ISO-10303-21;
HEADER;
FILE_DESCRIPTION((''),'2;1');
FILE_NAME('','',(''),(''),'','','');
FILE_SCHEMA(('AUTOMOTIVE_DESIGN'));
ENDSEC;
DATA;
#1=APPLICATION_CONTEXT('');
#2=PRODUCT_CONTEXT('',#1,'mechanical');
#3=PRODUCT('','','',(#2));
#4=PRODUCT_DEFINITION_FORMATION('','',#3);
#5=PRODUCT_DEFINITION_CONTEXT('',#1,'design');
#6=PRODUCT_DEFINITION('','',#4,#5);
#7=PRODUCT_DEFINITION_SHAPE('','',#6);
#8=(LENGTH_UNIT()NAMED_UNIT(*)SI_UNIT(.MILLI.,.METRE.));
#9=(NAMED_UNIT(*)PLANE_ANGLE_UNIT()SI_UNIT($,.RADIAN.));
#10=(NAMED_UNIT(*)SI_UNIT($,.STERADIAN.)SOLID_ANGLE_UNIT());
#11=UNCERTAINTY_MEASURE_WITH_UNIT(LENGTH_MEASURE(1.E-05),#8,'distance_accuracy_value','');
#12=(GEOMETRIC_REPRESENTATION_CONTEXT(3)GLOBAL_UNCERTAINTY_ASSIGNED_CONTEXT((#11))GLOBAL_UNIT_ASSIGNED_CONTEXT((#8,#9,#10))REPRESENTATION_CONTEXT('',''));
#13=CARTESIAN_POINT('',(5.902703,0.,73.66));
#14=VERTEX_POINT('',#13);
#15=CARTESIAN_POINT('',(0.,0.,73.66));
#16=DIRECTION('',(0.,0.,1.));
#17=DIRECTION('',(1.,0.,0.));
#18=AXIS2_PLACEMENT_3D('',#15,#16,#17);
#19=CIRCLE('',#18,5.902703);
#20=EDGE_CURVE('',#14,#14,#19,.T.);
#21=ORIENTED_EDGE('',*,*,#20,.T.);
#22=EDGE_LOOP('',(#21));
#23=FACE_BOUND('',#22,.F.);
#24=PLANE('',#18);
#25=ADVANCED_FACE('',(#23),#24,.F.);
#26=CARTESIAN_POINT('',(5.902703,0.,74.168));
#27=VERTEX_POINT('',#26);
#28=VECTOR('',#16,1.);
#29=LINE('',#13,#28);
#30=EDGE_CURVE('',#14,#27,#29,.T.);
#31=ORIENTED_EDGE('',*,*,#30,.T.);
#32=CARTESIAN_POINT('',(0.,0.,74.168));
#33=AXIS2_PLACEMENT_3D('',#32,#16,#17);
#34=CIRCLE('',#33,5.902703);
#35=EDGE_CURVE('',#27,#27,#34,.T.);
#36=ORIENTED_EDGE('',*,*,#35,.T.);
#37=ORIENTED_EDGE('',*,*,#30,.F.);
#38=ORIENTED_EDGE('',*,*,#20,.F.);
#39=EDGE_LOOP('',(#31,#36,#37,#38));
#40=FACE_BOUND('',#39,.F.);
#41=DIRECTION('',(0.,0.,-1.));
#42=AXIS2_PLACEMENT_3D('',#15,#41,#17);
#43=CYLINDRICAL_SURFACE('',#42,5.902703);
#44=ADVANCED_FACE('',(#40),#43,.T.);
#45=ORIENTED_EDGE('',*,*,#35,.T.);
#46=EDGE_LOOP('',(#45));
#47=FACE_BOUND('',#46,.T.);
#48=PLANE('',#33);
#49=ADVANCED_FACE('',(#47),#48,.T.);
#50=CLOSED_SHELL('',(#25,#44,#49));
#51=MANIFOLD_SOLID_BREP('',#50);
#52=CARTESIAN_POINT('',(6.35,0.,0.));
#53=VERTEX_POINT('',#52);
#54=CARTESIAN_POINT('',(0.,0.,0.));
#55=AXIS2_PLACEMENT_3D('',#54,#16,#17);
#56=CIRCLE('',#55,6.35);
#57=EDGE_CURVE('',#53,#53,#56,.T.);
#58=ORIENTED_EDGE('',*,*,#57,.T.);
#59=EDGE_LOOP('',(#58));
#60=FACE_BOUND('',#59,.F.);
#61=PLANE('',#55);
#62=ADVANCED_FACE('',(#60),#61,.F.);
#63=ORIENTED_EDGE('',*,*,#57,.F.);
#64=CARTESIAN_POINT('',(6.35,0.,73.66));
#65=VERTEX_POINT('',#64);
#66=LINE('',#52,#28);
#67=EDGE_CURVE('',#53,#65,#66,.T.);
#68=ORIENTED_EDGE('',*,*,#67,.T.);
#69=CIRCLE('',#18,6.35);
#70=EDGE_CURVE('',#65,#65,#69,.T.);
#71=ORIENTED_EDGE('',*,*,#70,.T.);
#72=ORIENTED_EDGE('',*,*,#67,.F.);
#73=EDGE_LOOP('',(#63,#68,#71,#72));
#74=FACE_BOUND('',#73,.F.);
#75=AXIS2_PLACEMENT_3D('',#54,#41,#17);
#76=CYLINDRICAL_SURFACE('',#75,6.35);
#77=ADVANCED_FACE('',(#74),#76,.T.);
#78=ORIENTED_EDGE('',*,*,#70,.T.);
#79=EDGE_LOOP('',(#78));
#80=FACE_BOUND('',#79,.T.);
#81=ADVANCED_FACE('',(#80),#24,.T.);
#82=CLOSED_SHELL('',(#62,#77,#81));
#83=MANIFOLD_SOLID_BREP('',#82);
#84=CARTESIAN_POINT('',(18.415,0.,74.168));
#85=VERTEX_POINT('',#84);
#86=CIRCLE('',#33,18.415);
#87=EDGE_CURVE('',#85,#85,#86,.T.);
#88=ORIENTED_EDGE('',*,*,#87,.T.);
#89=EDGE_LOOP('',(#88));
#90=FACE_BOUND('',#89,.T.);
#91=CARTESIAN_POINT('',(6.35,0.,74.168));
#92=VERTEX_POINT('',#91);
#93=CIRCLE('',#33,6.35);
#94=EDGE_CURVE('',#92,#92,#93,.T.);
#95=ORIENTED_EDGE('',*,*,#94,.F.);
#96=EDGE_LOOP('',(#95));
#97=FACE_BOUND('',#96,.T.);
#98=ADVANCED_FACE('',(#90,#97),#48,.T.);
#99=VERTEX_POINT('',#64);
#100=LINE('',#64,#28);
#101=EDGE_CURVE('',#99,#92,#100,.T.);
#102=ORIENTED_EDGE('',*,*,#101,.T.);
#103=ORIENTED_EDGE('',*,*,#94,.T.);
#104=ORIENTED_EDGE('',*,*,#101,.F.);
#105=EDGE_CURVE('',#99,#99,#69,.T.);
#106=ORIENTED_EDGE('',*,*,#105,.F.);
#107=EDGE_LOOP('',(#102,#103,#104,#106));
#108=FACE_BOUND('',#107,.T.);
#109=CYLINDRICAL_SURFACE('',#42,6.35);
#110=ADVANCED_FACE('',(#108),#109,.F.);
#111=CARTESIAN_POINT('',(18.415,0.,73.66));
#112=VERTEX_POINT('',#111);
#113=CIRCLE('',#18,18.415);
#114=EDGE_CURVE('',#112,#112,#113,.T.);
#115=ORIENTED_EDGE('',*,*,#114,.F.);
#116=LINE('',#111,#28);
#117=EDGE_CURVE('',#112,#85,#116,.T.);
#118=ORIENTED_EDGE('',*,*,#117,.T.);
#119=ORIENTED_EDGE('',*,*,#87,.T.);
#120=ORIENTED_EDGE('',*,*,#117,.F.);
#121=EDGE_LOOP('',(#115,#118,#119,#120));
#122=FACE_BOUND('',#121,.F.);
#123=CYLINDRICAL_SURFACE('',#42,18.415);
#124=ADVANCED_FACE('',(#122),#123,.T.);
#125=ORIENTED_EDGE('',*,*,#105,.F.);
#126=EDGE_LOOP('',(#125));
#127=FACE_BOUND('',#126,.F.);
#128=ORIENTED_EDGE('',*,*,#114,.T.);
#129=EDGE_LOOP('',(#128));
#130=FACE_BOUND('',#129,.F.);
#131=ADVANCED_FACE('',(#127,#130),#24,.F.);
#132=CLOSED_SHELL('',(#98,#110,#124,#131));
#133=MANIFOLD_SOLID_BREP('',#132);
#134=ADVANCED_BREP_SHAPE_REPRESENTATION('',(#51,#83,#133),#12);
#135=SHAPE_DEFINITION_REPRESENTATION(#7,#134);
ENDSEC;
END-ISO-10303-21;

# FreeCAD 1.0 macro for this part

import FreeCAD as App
import Part
import Sketcher
from FreeCAD import Vector
Q = App.Units.Quantity

doc = App.newDocument("Part")
body = doc.addObject("PartDesign::Body", "Body")

# Sketch on XY plane
sketch1 = body.newObject("Sketcher::SketchObject", "Sketch")
sketch1.AttachmentSupport = (doc.getObject("XY_Plane"), [""])
sketch1.MapMode = "FlatFace"
sketch1.addGeometry(Part.Circle(Vector(0, 0, 0), Vector(0, 0, 1), 6), False)
sketch1.addConstraint([
    Sketcher.Constraint("Coincident", 0, 3, -1, 1),
    Sketcher.Constraint("Diameter", 0, Q("0.5 in")),
])
pad1 = body.newObject("PartDesign::Pad", "Pad")
pad1.Profile = sketch1
pad1.Length = Q("2.9 in")
body2 = doc.addObject("PartDesign::Body", "Body001")
body2.AllowCompound = True

# Sketch on XY plane
sketch2 = body2.newObject("Sketcher::SketchObject", "Sketch001")
sketch2.AttachmentSupport = (doc.getObject("XY_Plane001"), [""])
sketch2.MapMode = "FlatFace"
sketch2.AttachmentOffset = App.Placement(Vector(0, 0, 2.9 * 25.4), App.Rotation())
sketch2.addGeometry([
    Part.Circle(Vector(0, 0, 0), Vector(0, 0, 1), 18),
    Part.Circle(Vector(0, 0, 0), Vector(0, 0, 1), 6),
    Part.Circle(Vector(0, 0, 0), Vector(0, 0, 1), 6),
], False)
sketch2.addConstraint([
    Sketcher.Constraint("Coincident", 0, 3, -1, 1),
    Sketcher.Constraint("Coincident", 1, 3, -1, 1),
    Sketcher.Constraint("Coincident", 2, 3, -1, 1),
    Sketcher.Constraint("Diameter", 1, Q("0.5 in")),
    Sketcher.Constraint("Diameter", 0, Q("1.45 in")),
    Sketcher.Constraint("Diameter", 2, 11.805406),
])
pad2 = body2.newObject("PartDesign::Pad", "Pad001")
pad2.Profile = sketch2
pad2.Length = Q("0.02 in")

doc.recompute()
